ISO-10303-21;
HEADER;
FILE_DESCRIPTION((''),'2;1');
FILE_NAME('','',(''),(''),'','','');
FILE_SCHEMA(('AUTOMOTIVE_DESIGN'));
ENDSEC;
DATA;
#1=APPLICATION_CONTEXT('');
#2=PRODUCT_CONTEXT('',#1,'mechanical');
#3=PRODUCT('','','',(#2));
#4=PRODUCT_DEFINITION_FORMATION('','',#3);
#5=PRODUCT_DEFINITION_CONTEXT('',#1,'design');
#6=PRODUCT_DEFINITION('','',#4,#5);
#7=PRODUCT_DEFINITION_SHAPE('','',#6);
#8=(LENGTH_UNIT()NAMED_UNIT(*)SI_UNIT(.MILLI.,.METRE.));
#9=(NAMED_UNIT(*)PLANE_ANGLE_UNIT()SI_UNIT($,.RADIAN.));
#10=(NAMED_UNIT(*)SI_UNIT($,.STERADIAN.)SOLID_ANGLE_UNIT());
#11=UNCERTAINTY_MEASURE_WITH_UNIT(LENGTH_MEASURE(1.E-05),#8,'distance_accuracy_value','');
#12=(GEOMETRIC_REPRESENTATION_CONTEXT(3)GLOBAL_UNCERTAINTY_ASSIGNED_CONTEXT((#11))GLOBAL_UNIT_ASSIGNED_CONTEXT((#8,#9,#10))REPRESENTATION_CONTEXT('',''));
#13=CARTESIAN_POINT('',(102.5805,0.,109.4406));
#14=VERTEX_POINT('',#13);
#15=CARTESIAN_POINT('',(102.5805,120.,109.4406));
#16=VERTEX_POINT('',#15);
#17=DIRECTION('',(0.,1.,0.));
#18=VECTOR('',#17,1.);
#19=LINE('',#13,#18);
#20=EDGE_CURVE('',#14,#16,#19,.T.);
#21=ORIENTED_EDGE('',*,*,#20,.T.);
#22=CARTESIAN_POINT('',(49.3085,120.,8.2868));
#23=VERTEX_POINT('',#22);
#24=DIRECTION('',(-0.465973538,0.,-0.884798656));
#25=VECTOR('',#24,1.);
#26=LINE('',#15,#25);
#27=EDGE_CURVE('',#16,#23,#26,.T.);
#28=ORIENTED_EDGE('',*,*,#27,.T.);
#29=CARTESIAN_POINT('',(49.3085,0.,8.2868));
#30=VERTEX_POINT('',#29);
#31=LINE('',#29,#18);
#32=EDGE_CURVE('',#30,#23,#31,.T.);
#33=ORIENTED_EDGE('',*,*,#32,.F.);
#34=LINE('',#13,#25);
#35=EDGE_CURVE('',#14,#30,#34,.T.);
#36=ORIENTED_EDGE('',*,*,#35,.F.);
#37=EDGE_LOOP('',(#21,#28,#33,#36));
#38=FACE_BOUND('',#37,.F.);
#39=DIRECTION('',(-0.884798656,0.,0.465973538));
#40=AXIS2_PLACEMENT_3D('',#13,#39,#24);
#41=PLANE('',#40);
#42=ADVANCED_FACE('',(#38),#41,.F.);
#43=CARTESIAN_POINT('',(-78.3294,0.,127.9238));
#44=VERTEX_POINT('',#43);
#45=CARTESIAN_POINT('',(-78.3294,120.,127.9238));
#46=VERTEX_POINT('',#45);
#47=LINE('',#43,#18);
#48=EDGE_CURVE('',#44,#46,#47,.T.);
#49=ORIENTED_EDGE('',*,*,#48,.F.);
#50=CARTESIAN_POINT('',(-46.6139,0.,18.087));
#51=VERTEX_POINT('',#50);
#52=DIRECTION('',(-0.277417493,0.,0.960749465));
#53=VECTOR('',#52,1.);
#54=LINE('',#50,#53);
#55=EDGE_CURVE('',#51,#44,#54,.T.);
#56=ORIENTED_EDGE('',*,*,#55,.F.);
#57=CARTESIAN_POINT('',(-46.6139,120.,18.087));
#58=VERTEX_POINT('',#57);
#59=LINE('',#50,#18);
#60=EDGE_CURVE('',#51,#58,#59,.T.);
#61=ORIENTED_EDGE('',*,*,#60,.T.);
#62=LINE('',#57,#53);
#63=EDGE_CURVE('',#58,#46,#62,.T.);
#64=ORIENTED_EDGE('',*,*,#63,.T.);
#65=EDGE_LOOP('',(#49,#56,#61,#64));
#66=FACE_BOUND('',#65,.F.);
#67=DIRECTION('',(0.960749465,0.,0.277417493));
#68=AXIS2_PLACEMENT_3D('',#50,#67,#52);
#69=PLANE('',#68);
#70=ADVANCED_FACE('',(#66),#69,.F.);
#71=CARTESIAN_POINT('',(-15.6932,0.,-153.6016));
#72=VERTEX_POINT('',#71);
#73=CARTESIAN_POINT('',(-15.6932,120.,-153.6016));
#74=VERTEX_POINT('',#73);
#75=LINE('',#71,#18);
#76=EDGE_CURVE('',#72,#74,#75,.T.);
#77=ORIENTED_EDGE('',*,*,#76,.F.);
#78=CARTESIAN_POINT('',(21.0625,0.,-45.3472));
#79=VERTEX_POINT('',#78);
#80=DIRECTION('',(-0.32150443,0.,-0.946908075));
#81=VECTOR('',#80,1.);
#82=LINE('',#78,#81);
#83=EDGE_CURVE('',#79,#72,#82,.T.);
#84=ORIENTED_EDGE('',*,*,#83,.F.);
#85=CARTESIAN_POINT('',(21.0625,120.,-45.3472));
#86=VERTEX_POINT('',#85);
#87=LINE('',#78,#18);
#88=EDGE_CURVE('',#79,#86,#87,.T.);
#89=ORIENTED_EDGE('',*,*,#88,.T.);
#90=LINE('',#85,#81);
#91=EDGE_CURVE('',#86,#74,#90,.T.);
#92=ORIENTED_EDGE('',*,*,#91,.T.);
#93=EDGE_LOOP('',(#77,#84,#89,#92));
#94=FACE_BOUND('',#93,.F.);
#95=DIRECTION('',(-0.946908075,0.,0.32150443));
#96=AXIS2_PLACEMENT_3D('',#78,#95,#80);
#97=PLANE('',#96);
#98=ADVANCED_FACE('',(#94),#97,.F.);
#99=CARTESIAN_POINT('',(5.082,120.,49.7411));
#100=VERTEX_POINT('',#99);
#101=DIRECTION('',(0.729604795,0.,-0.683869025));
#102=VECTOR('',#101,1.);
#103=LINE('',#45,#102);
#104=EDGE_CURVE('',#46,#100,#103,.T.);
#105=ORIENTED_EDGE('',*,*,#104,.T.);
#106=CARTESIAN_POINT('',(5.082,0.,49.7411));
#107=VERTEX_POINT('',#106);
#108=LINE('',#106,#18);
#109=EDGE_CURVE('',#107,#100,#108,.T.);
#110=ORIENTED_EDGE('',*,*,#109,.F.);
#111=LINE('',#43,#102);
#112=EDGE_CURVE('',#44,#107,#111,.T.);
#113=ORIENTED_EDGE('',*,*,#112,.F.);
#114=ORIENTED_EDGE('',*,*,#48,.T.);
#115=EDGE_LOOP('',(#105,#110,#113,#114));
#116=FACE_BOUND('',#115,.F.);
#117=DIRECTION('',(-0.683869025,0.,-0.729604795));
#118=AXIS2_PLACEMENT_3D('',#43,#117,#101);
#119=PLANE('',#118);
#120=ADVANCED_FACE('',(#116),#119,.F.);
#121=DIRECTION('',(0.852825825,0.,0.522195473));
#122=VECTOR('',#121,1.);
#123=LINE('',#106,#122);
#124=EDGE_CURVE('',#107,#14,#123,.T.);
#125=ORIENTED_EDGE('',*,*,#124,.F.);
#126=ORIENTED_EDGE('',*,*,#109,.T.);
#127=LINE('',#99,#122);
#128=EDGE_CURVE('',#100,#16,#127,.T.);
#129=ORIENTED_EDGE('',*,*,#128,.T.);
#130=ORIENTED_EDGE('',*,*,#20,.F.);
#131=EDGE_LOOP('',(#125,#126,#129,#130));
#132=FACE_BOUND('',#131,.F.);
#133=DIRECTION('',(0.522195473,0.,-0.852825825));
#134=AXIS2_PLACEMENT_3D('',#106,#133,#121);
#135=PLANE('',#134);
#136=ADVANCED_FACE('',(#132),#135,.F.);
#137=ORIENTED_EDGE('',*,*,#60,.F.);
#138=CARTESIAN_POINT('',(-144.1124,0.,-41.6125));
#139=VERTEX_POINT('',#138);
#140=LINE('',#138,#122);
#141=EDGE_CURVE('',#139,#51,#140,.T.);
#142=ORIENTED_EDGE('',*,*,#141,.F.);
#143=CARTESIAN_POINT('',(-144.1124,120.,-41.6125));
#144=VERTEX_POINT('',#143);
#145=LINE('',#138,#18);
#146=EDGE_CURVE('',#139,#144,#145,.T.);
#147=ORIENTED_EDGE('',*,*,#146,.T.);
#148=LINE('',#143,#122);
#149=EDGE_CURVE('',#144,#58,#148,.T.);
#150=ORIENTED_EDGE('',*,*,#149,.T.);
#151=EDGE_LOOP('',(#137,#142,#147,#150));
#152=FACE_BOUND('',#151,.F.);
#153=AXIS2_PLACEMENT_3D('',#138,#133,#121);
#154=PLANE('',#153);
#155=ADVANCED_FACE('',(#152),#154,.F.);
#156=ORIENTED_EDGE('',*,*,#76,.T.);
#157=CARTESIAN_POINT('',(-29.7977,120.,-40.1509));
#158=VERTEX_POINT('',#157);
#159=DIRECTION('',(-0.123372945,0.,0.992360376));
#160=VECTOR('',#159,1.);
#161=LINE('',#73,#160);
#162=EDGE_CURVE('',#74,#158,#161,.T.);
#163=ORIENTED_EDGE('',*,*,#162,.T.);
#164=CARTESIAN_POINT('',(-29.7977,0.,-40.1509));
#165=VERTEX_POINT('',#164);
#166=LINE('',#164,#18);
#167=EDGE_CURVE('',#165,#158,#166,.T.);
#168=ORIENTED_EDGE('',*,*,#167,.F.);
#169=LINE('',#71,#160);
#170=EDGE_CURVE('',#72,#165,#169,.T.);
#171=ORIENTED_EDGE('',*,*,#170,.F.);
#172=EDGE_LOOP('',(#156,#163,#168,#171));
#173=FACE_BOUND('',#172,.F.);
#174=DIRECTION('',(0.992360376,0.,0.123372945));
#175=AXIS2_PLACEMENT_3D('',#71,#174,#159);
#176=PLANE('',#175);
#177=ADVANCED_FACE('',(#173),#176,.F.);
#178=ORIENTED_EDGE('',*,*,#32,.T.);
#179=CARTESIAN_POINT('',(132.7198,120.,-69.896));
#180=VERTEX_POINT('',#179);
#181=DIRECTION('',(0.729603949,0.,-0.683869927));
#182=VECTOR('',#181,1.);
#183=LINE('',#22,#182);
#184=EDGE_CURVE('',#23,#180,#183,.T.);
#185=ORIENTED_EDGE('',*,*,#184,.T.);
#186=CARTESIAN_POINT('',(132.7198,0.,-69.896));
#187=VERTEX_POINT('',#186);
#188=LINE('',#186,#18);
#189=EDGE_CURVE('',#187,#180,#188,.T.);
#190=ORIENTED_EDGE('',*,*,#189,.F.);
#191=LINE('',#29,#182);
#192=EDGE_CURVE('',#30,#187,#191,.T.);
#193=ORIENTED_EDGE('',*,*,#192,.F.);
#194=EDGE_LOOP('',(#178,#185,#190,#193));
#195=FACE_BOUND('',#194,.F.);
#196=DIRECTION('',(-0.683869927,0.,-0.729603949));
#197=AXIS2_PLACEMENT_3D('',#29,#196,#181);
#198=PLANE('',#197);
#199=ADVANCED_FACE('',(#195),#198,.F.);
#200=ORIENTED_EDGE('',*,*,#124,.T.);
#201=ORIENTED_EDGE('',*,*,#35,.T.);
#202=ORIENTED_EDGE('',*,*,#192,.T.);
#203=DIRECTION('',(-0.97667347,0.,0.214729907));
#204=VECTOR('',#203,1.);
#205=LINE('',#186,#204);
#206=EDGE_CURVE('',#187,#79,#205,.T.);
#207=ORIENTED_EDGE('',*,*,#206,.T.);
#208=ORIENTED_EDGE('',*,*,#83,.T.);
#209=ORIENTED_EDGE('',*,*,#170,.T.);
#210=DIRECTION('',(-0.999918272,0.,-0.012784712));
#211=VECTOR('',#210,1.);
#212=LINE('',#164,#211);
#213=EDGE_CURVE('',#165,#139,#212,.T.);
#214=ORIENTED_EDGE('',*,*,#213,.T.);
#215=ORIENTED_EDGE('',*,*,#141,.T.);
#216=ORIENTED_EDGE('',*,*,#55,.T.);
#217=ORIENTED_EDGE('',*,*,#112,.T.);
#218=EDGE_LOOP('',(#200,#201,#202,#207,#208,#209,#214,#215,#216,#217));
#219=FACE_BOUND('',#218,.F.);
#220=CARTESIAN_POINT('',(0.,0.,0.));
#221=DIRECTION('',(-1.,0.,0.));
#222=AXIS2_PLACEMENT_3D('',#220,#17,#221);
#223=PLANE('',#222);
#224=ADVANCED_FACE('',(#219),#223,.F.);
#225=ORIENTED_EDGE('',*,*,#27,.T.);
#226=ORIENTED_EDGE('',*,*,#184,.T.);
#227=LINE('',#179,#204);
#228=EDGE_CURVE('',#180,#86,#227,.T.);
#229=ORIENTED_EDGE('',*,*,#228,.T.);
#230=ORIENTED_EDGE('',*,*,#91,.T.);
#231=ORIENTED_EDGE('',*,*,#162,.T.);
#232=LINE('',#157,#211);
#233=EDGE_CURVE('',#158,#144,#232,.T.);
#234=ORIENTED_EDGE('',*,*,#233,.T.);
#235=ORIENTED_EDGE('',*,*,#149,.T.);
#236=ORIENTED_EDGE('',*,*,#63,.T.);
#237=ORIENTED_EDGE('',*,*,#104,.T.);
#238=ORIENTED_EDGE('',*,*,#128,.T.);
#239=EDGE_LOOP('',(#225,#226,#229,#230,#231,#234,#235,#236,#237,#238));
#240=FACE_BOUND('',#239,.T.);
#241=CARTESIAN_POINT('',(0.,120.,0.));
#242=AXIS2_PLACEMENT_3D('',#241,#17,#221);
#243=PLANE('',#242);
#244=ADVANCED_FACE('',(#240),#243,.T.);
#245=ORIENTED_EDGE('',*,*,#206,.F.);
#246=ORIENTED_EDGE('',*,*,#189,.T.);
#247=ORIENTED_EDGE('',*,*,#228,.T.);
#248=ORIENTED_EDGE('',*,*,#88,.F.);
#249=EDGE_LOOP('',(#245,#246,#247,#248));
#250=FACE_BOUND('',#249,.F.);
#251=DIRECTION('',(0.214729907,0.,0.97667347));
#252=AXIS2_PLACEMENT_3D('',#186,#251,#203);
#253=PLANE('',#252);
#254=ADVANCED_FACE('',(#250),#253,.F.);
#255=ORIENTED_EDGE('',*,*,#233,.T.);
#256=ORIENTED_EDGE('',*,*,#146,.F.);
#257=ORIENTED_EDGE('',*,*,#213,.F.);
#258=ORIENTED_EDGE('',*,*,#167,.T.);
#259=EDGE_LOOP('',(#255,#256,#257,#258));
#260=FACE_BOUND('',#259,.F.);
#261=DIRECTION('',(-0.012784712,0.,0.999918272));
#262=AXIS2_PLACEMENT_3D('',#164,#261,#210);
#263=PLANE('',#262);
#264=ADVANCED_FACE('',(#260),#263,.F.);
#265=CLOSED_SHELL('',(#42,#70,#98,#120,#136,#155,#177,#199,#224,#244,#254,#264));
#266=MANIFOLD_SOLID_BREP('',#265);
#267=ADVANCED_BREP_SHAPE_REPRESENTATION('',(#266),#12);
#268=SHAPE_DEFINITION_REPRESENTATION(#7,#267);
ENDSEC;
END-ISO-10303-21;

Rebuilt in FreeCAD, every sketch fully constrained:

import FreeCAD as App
import Part
import Sketcher
from FreeCAD import Vector
Q = App.Units.Quantity


def add_polygon(sketch, points):
    """Adds a closed chain of lines whose ends are joined by coincident constraints."""
    first, n = sketch.GeometryCount, len(points)
    for a, b in zip(points, points[1:] + points[:1]):
        sketch.addGeometry(Part.LineSegment(App.Vector(*a, 0), App.Vector(*b, 0)), False)
    for i in range(n):
        sketch.addConstraint(Sketcher.Constraint("Coincident", first + i, 2, first + (i + 1) % n, 1))

doc = App.newDocument("Part")
body = doc.addObject("PartDesign::Body", "Body")

sketch1 = body.newObject("Sketcher::SketchObject", "Sketch")
sketch1.AttachmentSupport = (doc.getObject("XZ_Plane"), [""])
sketch1.MapMode = "FlatFace"
add_polygon(sketch1, [(-30, -40), (-144, -42), (-47, 18), (-78, 128), (5, 50), (103, 109), (49, 8), (133, -70), (21, -45), (-16, -154)])
sketch1.addConstraint(Sketcher.Constraint("Parallel", 1, 4))
sketch1.addConstraint(Sketcher.Constraint("Parallel", 3, 6))
sketch1.addConstraint(Sketcher.Constraint("Equal", 0, 1))
sketch1.addConstraint(Sketcher.Constraint("Equal", 1, 2))
sketch1.addConstraint(Sketcher.Constraint("Equal", 2, 3))
sketch1.addConstraint(Sketcher.Constraint("Equal", 3, 4))
sketch1.addConstraint(Sketcher.Constraint("Equal", 4, 5))
sketch1.addConstraint(Sketcher.Constraint("Equal", 5, 6))
sketch1.addConstraint(Sketcher.Constraint("Equal", 6, 7))
sketch1.addConstraint(Sketcher.Constraint("Equal", 7, 8))
sketch1.addConstraint(Sketcher.Constraint("Equal", 8, 9))
sketch1.addConstraint(Sketcher.Constraint("Angle", 7, Q("167.6003 deg")))
sketch1.addConstraint(Sketcher.Constraint("Angle", 1, Q("31.4796 deg")))
sketch1.addConstraint(Sketcher.Constraint("DistanceX", 2, 2, 4, 2, 180.91))
sketch1.addConstraint(Sketcher.Constraint("Distance", 0, 114.324))
sketch1.addConstraint(Sketcher.Constraint("DistanceX", 1, 2, -1, 1, 46.614))
sketch1.addConstraint(Sketcher.Constraint("DistanceY", -1, 1, 1, 2, 18.087))
sketch1.addConstraint(Sketcher.Constraint("DistanceX", -1, 1, 3, 2, 5.082))
sketch1.addConstraint(Sketcher.Constraint("DistanceY", 6, 2, -1, 1, 69.896))
sketch1.addConstraint(Sketcher.Constraint("DistanceY", 9, 2, -1, 1, 40.151))
pad1 = body.newObject("PartDesign::Pad", "Pad")
pad1.Profile = sketch1
pad1.Length = 120
pad1.Reversed = True

doc.recompute()
